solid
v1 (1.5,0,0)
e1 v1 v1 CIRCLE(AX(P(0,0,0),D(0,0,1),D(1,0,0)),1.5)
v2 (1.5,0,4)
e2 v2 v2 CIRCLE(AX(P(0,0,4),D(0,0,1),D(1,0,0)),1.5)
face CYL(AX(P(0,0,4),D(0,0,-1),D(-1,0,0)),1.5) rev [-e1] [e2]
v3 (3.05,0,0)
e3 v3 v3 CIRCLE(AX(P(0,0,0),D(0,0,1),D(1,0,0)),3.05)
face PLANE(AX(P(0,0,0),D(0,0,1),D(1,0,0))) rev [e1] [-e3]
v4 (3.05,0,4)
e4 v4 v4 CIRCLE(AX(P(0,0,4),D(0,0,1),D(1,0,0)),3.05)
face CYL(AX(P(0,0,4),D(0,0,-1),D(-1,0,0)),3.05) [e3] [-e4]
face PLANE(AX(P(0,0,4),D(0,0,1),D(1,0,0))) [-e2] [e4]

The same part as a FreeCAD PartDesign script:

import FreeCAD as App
import Part
import Sketcher
from FreeCAD import Vector
Q = App.Units.Quantity

doc = App.newDocument("Part")
body = doc.addObject("PartDesign::Body", "Body")

# Sketch on XY plane
sketch1 = doc.addObject("Sketcher::SketchObject", "Sketch")
body.addObject(sketch1)
sketch1.AttachmentSupport = (doc.XY_Plane, [""])
sketch1.MapMode = "FlatFace"
sketch1.addGeometry([
    Part.Circle(Vector(0, 0, 0), Vector(0, 0, 1), 3.05),
    Part.Circle(Vector(0, 0, 0), Vector(0, 0, 1), 1.5),
], False)
sketch1.addConstraint([
    Sketcher.Constraint("Coincident", 0, 3, -1, 1),
    Sketcher.Constraint("Coincident", 1, 3, -1, 1),
    Sketcher.Constraint("Diameter", 1, Q("3 mm")),
    Sketcher.Constraint("Diameter", 0, Q("6.1 mm")),
])
pad1 = doc.addObject("PartDesign::Pad", "Pad")
body.addObject(pad1)
pad1.Profile = sketch1
pad1.Length = 4

doc.recompute()
